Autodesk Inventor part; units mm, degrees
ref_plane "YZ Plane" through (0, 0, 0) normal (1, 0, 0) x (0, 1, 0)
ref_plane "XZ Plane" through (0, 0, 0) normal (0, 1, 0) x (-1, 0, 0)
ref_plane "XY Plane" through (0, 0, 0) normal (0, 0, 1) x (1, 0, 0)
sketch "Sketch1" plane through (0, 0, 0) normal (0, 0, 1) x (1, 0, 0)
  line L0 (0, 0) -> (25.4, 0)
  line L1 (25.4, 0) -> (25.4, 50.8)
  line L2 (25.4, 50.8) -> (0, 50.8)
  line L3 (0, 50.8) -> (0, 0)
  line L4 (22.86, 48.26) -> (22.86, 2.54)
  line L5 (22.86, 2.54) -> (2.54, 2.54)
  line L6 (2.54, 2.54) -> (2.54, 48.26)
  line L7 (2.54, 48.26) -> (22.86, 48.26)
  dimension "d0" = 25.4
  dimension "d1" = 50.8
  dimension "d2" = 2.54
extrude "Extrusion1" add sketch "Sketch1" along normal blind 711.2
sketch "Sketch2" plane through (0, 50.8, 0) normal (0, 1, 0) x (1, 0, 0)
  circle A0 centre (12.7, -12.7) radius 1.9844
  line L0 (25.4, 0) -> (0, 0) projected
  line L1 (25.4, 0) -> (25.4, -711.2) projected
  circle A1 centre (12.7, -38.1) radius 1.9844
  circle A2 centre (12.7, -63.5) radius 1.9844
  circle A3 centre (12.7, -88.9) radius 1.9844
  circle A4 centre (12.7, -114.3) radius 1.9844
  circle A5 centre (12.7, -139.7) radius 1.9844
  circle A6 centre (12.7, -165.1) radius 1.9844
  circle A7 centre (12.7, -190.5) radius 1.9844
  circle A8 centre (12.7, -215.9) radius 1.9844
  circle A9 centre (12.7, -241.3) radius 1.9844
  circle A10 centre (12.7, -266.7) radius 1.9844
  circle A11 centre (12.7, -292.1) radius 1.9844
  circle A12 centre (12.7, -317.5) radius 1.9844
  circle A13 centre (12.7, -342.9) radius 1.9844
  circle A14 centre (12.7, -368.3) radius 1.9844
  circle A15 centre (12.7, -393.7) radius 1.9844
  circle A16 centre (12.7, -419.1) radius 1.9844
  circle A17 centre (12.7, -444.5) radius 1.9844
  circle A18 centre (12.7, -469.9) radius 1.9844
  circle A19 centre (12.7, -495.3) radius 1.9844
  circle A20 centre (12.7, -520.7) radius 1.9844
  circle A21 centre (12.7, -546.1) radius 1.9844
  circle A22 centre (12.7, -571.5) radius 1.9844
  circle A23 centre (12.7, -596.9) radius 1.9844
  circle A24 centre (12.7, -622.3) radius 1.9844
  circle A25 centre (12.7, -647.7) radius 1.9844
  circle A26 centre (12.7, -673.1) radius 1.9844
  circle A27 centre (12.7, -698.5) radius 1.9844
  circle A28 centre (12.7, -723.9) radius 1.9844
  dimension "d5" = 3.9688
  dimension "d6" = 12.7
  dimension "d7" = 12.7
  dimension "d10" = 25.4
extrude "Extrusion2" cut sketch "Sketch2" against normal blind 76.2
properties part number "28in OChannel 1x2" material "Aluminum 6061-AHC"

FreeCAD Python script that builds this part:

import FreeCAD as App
import Part
import Sketcher
from FreeCAD import Vector
Q = App.Units.Quantity


def add_polygon(sketch, points):
    """Adds a closed chain of lines whose ends are joined by coincident constraints."""
    first, n = sketch.GeometryCount, len(points)
    for a, b in zip(points, points[1:] + points[:1]):
        sketch.addGeometry(Part.LineSegment(App.Vector(*a, 0), App.Vector(*b, 0)), False)
    for i in range(n):
        sketch.addConstraint(Sketcher.Constraint("Coincident", first + i, 2, first + (i + 1) % n, 1))

doc = App.newDocument("Part")
params = doc.addObject("Spreadsheet::Sheet", "Params")
for row, (alias, value) in enumerate([
    ("sketch1_width", "1 in"),
    ("sketch1_height", "2 in"),
    ("pad1_length", "28 in"),
    ("sketch2_diameter", "0.156252 in"),
    ("pocket1_length", "3 in"),
], start=1):
    params.set(f"A{row}", alias)
    params.set(f"B{row}", "=" + value)
    params.setAlias(f"B{row}", alias)

body = doc.addObject("PartDesign::Body", "Body")

# Sketch on XY plane
sketch1 = body.newObject("Sketcher::SketchObject", "Sketch")
sketch1.AttachmentSupport = (doc.getObject("XY_Plane"), [""])
sketch1.MapMode = "FlatFace"
add_polygon(sketch1, [(0, 51), (0, 0), (25, 0), (25, 51)])  # lines 0-3
add_polygon(sketch1, [(3, 48), (23, 48), (23, 3), (3, 3)])  # lines 4-7
sketch1.addConstraint([
    Sketcher.Constraint("Vertical", 0),
    Sketcher.Constraint("Horizontal", 1),
    Sketcher.Constraint("Vertical", 2),
    Sketcher.Constraint("Horizontal", 3),
    Sketcher.Constraint("Horizontal", 4),
    Sketcher.Constraint("Vertical", 5),
    Sketcher.Constraint("Horizontal", 6),
    Sketcher.Constraint("Vertical", 7),
    Sketcher.Constraint("Coincident", 0, 2, -1, 1),
    Sketcher.Constraint("DistanceX", 1, 1, 1, 2, Q("1 in")),
    Sketcher.Constraint("DistanceY", 0, 2, 0, 1, Q("2 in")),
    Sketcher.Constraint("DistanceY", -1, 1, 5, 2, Q("0.1 in")),
    Sketcher.Constraint("DistanceX", -1, 1, 6, 2, Q("0.1 in")),
    Sketcher.Constraint("DistanceX", 4, 2, 2, 2, Q("0.1 in")),
    Sketcher.Constraint("DistanceY", 4, 2, 2, 2, Q("0.1 in")),
])
sketch1.setExpression("Constraints[17]", "Params.sketch1_width")
sketch1.setExpression("Constraints[18]", "Params.sketch1_height")
pad1 = body.newObject("PartDesign::Pad", "Pad")
pad1.Profile = sketch1
pad1.setExpression("Length", "Params.pad1_length")

# Sketch on XZ plane
sketch2 = body.newObject("Sketcher::SketchObject", "Sketch001")
sketch2.AttachmentSupport = (doc.getObject("XZ_Plane"), [""])
sketch2.MapMode = "FlatFace"
sketch2.AttachmentOffset = App.Placement(Vector(0, 0, -2 * 25.4), App.Rotation())
sketch2.addGeometry([
    Part.Circle(Vector(12.7, 12.7, 0), Vector(0, 0, 1), 2),  # 0
    Part.Circle(Vector(12.7, 38.1, 0), Vector(0, 0, 1), 2),  # 1
    Part.Circle(Vector(12.7, 63.5, 0), Vector(0, 0, 1), 2),  # 2
    Part.Circle(Vector(12.7, 88.9, 0), Vector(0, 0, 1), 2),  # 3
    Part.Circle(Vector(12.7, 114.3, 0), Vector(0, 0, 1), 2),  # 4
    Part.Circle(Vector(12.7, 139.7, 0), Vector(0, 0, 1), 2),  # 5
    Part.Circle(Vector(12.7, 165.1, 0), Vector(0, 0, 1), 2),  # 6
    Part.Circle(Vector(12.7, 190.5, 0), Vector(0, 0, 1), 2),  # 7
    Part.Circle(Vector(12.7, 215.9, 0), Vector(0, 0, 1), 2),  # 8
    Part.Circle(Vector(12.7, 241.3, 0), Vector(0, 0, 1), 2),  # 9
    Part.Circle(Vector(12.7, 266.7, 0), Vector(0, 0, 1), 2),  # 10
    Part.Circle(Vector(12.7, 292.1, 0), Vector(0, 0, 1), 2),  # 11
    Part.Circle(Vector(12.7, 317.5, 0), Vector(0, 0, 1), 2),  # 12
    Part.Circle(Vector(12.7, 342.9, 0), Vector(0, 0, 1), 2),  # 13
    Part.Circle(Vector(12.7, 368.3, 0), Vector(0, 0, 1), 2),  # 14
    Part.Circle(Vector(12.7, 393.7, 0), Vector(0, 0, 1), 2),  # 15
    Part.Circle(Vector(12.7, 419.1, 0), Vector(0, 0, 1), 2),  # 16
    Part.Circle(Vector(12.7, 444.5, 0), Vector(0, 0, 1), 2),  # 17
    Part.Circle(Vector(12.7, 469.9, 0), Vector(0, 0, 1), 2),  # 18
    Part.Circle(Vector(12.7, 495.3, 0), Vector(0, 0, 1), 2),  # 19
    Part.Circle(Vector(12.7, 520.7, 0), Vector(0, 0, 1), 2),  # 20
    Part.Circle(Vector(12.7, 546.1, 0), Vector(0, 0, 1), 2),  # 21
    Part.Circle(Vector(12.7, 571.5, 0), Vector(0, 0, 1), 2),  # 22
    Part.Circle(Vector(12.7, 596.9, 0), Vector(0, 0, 1), 2),  # 23
    Part.Circle(Vector(12.7, 622.3, 0), Vector(0, 0, 1), 2),  # 24
    Part.Circle(Vector(12.7, 647.7, 0), Vector(0, 0, 1), 2),  # 25
    Part.Circle(Vector(12.7, 673.1, 0), Vector(0, 0, 1), 2),  # 26
    Part.Circle(Vector(12.7, 698.5, 0), Vector(0, 0, 1), 2),  # 27
    Part.Circle(Vector(12.7, 723.9, 0), Vector(0, 0, 1), 2),  # 28
], False)
sketch2.addConstraint([
    Sketcher.Constraint("Equal", 0, 1),
    Sketcher.Constraint("Equal", 1, 2),
    Sketcher.Constraint("Equal", 2, 3),
    Sketcher.Constraint("Equal", 3, 4),
    Sketcher.Constraint("Equal", 4, 5),
    Sketcher.Constraint("Equal", 5, 6),
    Sketcher.Constraint("Equal", 6, 7),
    Sketcher.Constraint("Equal", 7, 8),
    Sketcher.Constraint("Equal", 8, 9),
    Sketcher.Constraint("Equal", 9, 10),
    Sketcher.Constraint("Equal", 10, 11),
    Sketcher.Constraint("Equal", 11, 12),
    Sketcher.Constraint("Equal", 12, 13),
    Sketcher.Constraint("Equal", 13, 14),
    Sketcher.Constraint("Equal", 14, 15),
    Sketcher.Constraint("Equal", 15, 16),
    Sketcher.Constraint("Equal", 16, 17),
    Sketcher.Constraint("Equal", 17, 18),
    Sketcher.Constraint("Equal", 18, 19),
    Sketcher.Constraint("Equal", 19, 20),
    Sketcher.Constraint("Equal", 20, 21),
    Sketcher.Constraint("Equal", 21, 22),
    Sketcher.Constraint("Equal", 22, 23),
    Sketcher.Constraint("Equal", 23, 24),
    Sketcher.Constraint("Equal", 24, 25),
    Sketcher.Constraint("Equal", 25, 26),
    Sketcher.Constraint("Equal", 26, 27),
    Sketcher.Constraint("Equal", 27, 28),
    Sketcher.Constraint("Vertical", 0, 3, 1, 3),
    Sketcher.Constraint("Vertical", 1, 3, 2, 3),
    Sketcher.Constraint("Vertical", 2, 3, 3, 3),
    Sketcher.Constraint("Vertical", 3, 3, 4, 3),
    Sketcher.Constraint("Vertical", 4, 3, 5, 3),
    Sketcher.Constraint("Vertical", 5, 3, 6, 3),
    Sketcher.Constraint("Vertical", 6, 3, 7, 3),
    Sketcher.Constraint("Vertical", 7, 3, 8, 3),
    Sketcher.Constraint("Vertical", 8, 3, 9, 3),
    Sketcher.Constraint("Vertical", 9, 3, 10, 3),
    Sketcher.Constraint("Vertical", 10, 3, 11, 3),
    Sketcher.Constraint("Vertical", 11, 3, 12, 3),
    Sketcher.Constraint("Vertical", 12, 3, 13, 3),
    Sketcher.Constraint("Vertical", 13, 3, 14, 3),
    Sketcher.Constraint("Vertical", 14, 3, 15, 3),
    Sketcher.Constraint("Vertical", 15, 3, 16, 3),
    Sketcher.Constraint("Vertical", 16, 3, 17, 3),
    Sketcher.Constraint("Vertical", 17, 3, 18, 3),
    Sketcher.Constraint("Vertical", 18, 3, 19, 3),
    Sketcher.Constraint("Vertical", 19, 3, 20, 3),
    Sketcher.Constraint("Vertical", 20, 3, 21, 3),
    Sketcher.Constraint("Vertical", 21, 3, 22, 3),
    Sketcher.Constraint("Vertical", 22, 3, 23, 3),
    Sketcher.Constraint("Vertical", 23, 3, 24, 3),
    Sketcher.Constraint("Vertical", 24, 3, 25, 3),
    Sketcher.Constraint("Vertical", 25, 3, 26, 3),
    Sketcher.Constraint("Vertical", 26, 3, 27, 3),
    Sketcher.Constraint("Vertical", 27, 3, 28, 3),
    Sketcher.Constraint("Diameter", 0, Q("0.156252 in")),
    Sketcher.Constraint("DistanceY", 0, 3, 1, 3, Q("1 in")),
    Sketcher.Constraint("DistanceY", 1, 3, 2, 3, Q("1 in")),
    Sketcher.Constraint("DistanceY", 2, 3, 3, 3, Q("1 in")),
    Sketcher.Constraint("DistanceY", 3, 3, 4, 3, Q("1 in")),
    Sketcher.Constraint("DistanceY", 4, 3, 5, 3, Q("1 in")),
    Sketcher.Constraint("DistanceY", 5, 3, 6, 3, Q("1 in")),
    Sketcher.Constraint("DistanceY", 6, 3, 7, 3, Q("1 in")),
    Sketcher.Constraint("DistanceY", 7, 3, 8, 3, Q("1 in")),
    Sketcher.Constraint("DistanceY", 8, 3, 9, 3, Q("1 in")),
    Sketcher.Constraint("DistanceY", 9, 3, 10, 3, Q("1 in")),
    Sketcher.Constraint("DistanceY", 10, 3, 11, 3, Q("1 in")),
    Sketcher.Constraint("DistanceY", 11, 3, 12, 3, Q("1 in")),
    Sketcher.Constraint("DistanceY", 12, 3, 13, 3, Q("1 in")),
    Sketcher.Constraint("DistanceY", 13, 3, 14, 3, Q("1 in")),
    Sketcher.Constraint("DistanceY", 14, 3, 15, 3, Q("1 in")),
    Sketcher.Constraint("DistanceY", 15, 3, 16, 3, Q("1 in")),
    Sketcher.Constraint("DistanceY", 16, 3, 17, 3, Q("1 in")),
    Sketcher.Constraint("DistanceY", 17, 3, 18, 3, Q("1 in")),
    Sketcher.Constraint("DistanceY", 18, 3, 19, 3, Q("1 in")),
    Sketcher.Constraint("DistanceY", 19, 3, 20, 3, Q("1 in")),
    Sketcher.Constraint("DistanceY", 20, 3, 21, 3, Q("1 in")),
    Sketcher.Constraint("DistanceY", 21, 3, 22, 3, Q("1 in")),
    Sketcher.Constraint("DistanceY", 22, 3, 23, 3, Q("1 in")),
    Sketcher.Constraint("DistanceY", 23, 3, 24, 3, Q("1 in")),
    Sketcher.Constraint("DistanceY", 24, 3, 25, 3, Q("1 in")),
    Sketcher.Constraint("DistanceY", 25, 3, 26, 3, Q("1 in")),
    Sketcher.Constraint("DistanceY", 26, 3, 27, 3, Q("1 in")),
    Sketcher.Constraint("DistanceY", 27, 3, 28, 3, Q("1 in")),
    Sketcher.Constraint("DistanceX", -1, 1, 0, 3, Q("0.5 in")),
    Sketcher.Constraint("DistanceY", -1, 1, 0, 3, Q("0.5 in")),
])
sketch2.setExpression("Constraints[56]", "Params.sketch2_diameter")
pocket1 = body.newObject("PartDesign::Pocket", "Pocket")
pocket1.Profile = sketch2
pocket1.setExpression("Length", "Params.pocket1_length")
pocket1.Reversed = True

doc.recompute()
